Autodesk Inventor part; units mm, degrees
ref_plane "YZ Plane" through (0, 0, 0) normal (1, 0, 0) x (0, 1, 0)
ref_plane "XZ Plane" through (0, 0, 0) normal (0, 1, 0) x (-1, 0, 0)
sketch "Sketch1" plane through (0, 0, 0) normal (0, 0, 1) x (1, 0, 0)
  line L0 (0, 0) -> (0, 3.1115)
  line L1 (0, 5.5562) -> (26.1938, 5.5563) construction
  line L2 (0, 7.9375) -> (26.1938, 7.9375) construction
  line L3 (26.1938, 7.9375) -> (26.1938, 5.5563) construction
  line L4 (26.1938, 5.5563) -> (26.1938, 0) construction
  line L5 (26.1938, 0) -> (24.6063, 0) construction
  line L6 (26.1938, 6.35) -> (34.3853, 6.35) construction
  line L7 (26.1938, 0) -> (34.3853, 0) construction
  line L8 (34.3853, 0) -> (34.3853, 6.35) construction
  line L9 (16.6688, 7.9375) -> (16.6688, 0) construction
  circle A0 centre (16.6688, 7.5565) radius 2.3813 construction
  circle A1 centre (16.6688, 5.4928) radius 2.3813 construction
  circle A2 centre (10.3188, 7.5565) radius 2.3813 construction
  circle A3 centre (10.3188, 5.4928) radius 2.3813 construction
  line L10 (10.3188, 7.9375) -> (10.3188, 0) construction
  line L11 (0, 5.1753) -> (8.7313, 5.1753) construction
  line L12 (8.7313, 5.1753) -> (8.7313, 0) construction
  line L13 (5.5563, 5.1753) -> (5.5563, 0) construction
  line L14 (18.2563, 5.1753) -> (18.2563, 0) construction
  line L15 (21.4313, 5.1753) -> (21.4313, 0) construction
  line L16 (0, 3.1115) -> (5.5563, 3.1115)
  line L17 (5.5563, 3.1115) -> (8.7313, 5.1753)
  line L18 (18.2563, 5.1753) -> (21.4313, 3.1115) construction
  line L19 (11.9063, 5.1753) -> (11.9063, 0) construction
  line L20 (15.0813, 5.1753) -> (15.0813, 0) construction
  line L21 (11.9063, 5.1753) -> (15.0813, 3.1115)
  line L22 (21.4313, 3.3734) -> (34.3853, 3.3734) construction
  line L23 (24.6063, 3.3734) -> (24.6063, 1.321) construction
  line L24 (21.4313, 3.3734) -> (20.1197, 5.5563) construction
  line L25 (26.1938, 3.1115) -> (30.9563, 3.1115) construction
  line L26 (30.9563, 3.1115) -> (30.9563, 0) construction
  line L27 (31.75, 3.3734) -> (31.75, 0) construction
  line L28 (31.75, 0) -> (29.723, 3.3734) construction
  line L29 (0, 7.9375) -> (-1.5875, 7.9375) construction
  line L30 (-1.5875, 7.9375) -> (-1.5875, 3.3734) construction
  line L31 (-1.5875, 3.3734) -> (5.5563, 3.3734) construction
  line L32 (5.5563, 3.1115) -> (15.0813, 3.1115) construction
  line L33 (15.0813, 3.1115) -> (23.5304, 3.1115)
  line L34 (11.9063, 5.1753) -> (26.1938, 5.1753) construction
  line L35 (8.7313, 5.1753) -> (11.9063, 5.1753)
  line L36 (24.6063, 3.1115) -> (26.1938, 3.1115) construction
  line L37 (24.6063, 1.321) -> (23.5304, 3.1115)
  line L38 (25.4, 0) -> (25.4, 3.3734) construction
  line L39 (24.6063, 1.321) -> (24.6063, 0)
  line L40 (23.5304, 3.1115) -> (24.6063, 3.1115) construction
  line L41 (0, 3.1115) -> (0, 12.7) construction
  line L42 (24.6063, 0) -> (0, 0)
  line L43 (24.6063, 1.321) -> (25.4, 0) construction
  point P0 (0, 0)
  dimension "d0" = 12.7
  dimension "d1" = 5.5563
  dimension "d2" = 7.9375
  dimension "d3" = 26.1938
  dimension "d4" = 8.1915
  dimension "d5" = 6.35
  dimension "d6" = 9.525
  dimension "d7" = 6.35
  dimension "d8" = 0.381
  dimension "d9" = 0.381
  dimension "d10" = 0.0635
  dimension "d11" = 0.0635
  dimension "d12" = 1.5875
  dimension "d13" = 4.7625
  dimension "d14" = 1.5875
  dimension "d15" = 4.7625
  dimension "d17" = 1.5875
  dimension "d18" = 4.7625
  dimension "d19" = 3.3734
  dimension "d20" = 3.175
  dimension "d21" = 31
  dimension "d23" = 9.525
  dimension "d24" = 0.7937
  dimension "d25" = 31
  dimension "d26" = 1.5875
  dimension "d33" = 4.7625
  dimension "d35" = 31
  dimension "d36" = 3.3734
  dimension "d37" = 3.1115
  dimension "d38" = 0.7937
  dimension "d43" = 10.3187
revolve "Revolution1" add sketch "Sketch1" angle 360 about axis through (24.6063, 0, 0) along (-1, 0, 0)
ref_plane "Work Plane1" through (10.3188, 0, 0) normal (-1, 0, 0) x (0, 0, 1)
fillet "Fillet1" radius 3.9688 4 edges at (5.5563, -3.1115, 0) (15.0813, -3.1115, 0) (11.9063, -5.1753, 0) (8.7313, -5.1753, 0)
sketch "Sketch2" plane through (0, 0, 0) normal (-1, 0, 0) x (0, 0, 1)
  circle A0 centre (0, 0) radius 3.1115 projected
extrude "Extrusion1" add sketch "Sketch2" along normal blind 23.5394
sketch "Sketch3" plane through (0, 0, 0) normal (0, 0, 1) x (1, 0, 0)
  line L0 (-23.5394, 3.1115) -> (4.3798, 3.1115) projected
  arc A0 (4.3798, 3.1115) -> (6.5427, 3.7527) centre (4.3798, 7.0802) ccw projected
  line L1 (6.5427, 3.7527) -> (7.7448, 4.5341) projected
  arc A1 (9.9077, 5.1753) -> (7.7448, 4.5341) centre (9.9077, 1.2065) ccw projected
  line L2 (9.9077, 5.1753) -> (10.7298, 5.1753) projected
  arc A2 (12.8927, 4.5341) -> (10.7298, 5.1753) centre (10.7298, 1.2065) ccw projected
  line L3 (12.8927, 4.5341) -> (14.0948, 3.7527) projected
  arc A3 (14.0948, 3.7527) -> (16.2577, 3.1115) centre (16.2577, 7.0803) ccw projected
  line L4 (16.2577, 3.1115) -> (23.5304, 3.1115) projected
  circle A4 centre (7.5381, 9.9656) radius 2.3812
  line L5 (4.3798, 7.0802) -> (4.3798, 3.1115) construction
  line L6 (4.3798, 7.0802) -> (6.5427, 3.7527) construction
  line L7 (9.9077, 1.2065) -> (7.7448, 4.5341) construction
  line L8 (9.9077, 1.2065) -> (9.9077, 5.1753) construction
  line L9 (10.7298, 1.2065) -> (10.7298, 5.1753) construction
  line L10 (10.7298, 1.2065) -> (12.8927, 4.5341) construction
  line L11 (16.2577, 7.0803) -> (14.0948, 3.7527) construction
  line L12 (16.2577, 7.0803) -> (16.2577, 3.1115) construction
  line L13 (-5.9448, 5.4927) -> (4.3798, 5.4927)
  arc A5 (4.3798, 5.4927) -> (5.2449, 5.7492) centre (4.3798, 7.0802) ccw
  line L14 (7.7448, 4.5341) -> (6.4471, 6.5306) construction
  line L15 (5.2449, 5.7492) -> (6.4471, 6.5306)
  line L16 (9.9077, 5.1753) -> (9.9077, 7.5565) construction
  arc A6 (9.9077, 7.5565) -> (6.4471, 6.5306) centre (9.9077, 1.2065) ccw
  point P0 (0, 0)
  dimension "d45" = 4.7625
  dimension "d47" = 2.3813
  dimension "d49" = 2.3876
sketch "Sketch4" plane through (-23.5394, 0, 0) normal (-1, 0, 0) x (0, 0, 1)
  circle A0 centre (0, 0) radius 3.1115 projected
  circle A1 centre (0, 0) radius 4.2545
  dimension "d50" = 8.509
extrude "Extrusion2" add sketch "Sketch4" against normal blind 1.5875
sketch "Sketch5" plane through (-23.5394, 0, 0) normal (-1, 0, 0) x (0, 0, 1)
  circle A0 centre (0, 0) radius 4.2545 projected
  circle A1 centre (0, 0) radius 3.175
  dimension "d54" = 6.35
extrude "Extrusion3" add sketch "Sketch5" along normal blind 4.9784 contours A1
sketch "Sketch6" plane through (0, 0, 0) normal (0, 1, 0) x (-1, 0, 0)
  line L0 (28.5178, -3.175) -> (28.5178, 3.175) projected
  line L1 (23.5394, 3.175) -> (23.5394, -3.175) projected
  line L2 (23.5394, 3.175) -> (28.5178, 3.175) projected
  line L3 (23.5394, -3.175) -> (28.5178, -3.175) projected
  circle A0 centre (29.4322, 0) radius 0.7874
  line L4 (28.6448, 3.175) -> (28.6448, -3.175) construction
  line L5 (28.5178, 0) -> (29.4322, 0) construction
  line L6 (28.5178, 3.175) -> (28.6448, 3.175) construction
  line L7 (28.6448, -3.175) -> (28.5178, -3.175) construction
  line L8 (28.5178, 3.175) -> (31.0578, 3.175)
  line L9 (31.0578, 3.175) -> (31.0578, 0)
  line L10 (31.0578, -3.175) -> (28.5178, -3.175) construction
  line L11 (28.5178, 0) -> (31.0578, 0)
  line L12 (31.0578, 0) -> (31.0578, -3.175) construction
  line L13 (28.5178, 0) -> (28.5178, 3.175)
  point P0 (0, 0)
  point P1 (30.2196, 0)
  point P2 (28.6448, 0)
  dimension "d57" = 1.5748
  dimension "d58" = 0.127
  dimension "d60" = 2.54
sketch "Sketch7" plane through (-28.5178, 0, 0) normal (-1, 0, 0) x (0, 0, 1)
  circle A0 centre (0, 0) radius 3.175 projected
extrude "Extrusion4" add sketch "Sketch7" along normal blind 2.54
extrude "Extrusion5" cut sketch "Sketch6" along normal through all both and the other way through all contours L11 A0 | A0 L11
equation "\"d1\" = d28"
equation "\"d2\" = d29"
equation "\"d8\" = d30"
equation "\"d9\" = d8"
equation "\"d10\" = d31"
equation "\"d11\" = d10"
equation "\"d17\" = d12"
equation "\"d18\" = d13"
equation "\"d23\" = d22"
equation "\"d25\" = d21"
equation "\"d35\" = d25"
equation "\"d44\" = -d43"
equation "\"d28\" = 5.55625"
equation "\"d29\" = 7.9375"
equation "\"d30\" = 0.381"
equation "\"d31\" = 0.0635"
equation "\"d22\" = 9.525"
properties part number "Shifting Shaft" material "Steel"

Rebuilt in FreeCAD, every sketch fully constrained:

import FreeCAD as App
import Part
import Sketcher

V = App.Vector
Q = App.Units.Quantity


def edges_at(feature, points):
    """Names of the edges that pass closest to the given points."""
    edges = feature.Shape.Edges
    near = lambda p: min(range(len(edges)), key=lambda i: edges[i].distToShape(Part.Vertex(*p))[0])
    return sorted({f"Edge{near(p) + 1}" for p in points})


def add_polygon(sketch, points):
    """Adds a closed chain of lines whose ends are joined by coincident constraints."""
    first, n = sketch.GeometryCount, len(points)
    for a, b in zip(points, points[1:] + points[:1]):
        sketch.addGeometry(Part.LineSegment(App.Vector(*a, 0), App.Vector(*b, 0)), False)
    for i in range(n):
        sketch.addConstraint(Sketcher.Constraint("Coincident", first + i, 2, first + (i + 1) % n, 1))

doc = App.newDocument("Part")
body = doc.addObject("PartDesign::Body", "Body")

# Sketch on XY plane
sketch1 = doc.addObject("Sketcher::SketchObject", "Sketch")
body.addObject(sketch1)
sketch1.AttachmentSupport = (doc.XY_Plane, [""])
sketch1.MapMode = "FlatFace"
add_polygon(sketch1, [(0, 3.1), (0, 0), (24.6, 0), (24.6, 1.3), (23.5, 3.1), (15.1, 3.1), (11.9, 5.2), (8.7, 5.2), (5.6, 3.1)])  # lines 0-8
sketch1.addConstraint([
    Sketcher.Constraint("Vertical", 0),
    Sketcher.Constraint("Horizontal", 1),
    Sketcher.Constraint("Vertical", 2),
    Sketcher.Constraint("Horizontal", 4),
    Sketcher.Constraint("Horizontal", 6),
    Sketcher.Constraint("Horizontal", 8),
    Sketcher.Constraint("Coincident", 0, 2, -1, 1),
    Sketcher.Constraint("Horizontal", 4, 2, 7, 2),
    Sketcher.Constraint("Equal", 5, 7),
    Sketcher.Constraint("DistanceX", 5, 2, 2, 2, Q("0.5 in")),
    Sketcher.Constraint("DistanceX", 6, 2, 6, 1, Q("0.125 in")),
    Sketcher.Constraint("DistanceX", 8, 2, 8, 1, Q("0.218752 in")),
    Sketcher.Constraint("DistanceX", 6, 2, 4, 2, Q("0.25 in")),
    Sketcher.Constraint("DistanceY", 0, 2, 0, 1, Q("0.1225 in")),
    Sketcher.Constraint("DistanceY", 2, 1, 2, 2, Q("0.052 in")),
    Sketcher.Constraint("DistanceX", 4, 2, 4, 1, Q("8.449 mm")),
    Sketcher.Constraint("Distance", 5, Q("3.7868 mm")),
])
revolution = doc.addObject("PartDesign::Revolution", "Revolution")
body.addObject(revolution)
revolution.Profile = sketch1
revolution.ReferenceAxis = (sketch1, ["H_Axis"])
revolution.Angle = 360
doc.recompute()

fillet = doc.addObject("PartDesign::Fillet", "Fillet")
body.addObject(fillet)
fillet.Base = (revolution, edges_at(revolution, [
    (5.556, -3.111, 0),
    (15.081, -3.111, 0),
    (11.906, -5.175, 0),
    (8.731, -5.175, 0),
]))
fillet.Radius = Q("0.156252 in")

# Sketch on YZ plane
sketch2 = doc.addObject("Sketcher::SketchObject", "Sketch001")
body.addObject(sketch2)
sketch2.AttachmentSupport = (doc.YZ_Plane, [""])
sketch2.MapMode = "FlatFace"
sketch2.addGeometry(Part.Circle(V(0, 0, 0), V(0, 0, 1), 3.1), False)
sketch2.addConstraint([
    Sketcher.Constraint("Coincident", 0, 3, -1, 1),
    Sketcher.Constraint("Diameter", 0, Q("0.245 in")),
])
pad1 = doc.addObject("PartDesign::Pad", "Pad")
body.addObject(pad1)
pad1.Profile = sketch2
pad1.Length = 23.5394
pad1.Reversed = True

# Sketch on YZ plane
sketch3 = doc.addObject("Sketcher::SketchObject", "Sketch002")
body.addObject(sketch3)
sketch3.AttachmentSupport = (doc.YZ_Plane, [""])
sketch3.MapMode = "FlatFace"
sketch3.AttachmentOffset = App.Placement(V(0, 0, -23.5394), App.Rotation())
sketch3.addGeometry([
    Part.Circle(V(0, 0, 0), V(0, 0, 1), 4.3),
    Part.Circle(V(0, 0, 0), V(0, 0, 1), 3.1),
], False)
sketch3.addConstraint([
    Sketcher.Constraint("Coincident", 0, 3, -1, 1),
    Sketcher.Constraint("Coincident", 1, 3, -1, 1),
    Sketcher.Constraint("Diameter", 0, Q("0.335 in")),
    Sketcher.Constraint("Diameter", 1, Q("0.245 in")),
])
pad2 = doc.addObject("PartDesign::Pad", "Pad001")
body.addObject(pad2)
pad2.Profile = sketch3
pad2.Length = Q("0.0625 in")

# Sketch on YZ plane
sketch4 = doc.addObject("Sketcher::SketchObject", "Sketch003")
body.addObject(sketch4)
sketch4.AttachmentSupport = (doc.YZ_Plane, [""])
sketch4.MapMode = "FlatFace"
sketch4.AttachmentOffset = App.Placement(V(0, 0, -23.5394), App.Rotation())
sketch4.addGeometry(Part.Circle(V(0, 0, 0), V(0, 0, 1), 3.2), False)
sketch4.addConstraint([
    Sketcher.Constraint("Coincident", 0, 3, -1, 1),
    Sketcher.Constraint("Diameter", 0, Q("0.25 in")),
])
pad3 = doc.addObject("PartDesign::Pad", "Pad002")
body.addObject(pad3)
pad3.Profile = sketch4
pad3.Length = Q("0.196 in")
pad3.Reversed = True

# Sketch on YZ plane
sketch5 = doc.addObject("Sketcher::SketchObject", "Sketch004")
body.addObject(sketch5)
sketch5.AttachmentSupport = (doc.YZ_Plane, [""])
sketch5.MapMode = "FlatFace"
sketch5.AttachmentOffset = App.Placement(V(0, 0, -28.5178), App.Rotation())
sketch5.addGeometry(Part.Circle(V(0, 0, 0), V(0, 0, 1), 3.2), False)
sketch5.addConstraint([
    Sketcher.Constraint("Coincident", 0, 3, -1, 1),
    Sketcher.Constraint("Diameter", 0, Q("0.25 in")),
])
pad4 = doc.addObject("PartDesign::Pad", "Pad003")
body.addObject(pad4)
pad4.Profile = sketch5
pad4.Length = Q("0.1 in")
pad4.Reversed = True

# Sketch on XZ plane
sketch6 = doc.addObject("Sketcher::SketchObject", "Sketch005")
body.addObject(sketch6)
sketch6.AttachmentSupport = (doc.XZ_Plane, [""])
sketch6.MapMode = "FlatFace"
sketch6.addGeometry(Part.Circle(V(-29.4, 0, 0), V(0, 0, 1), 0.8), False)
sketch6.addConstraint([
    Sketcher.Constraint("PointOnObject", 0, 3, -1),
    Sketcher.Constraint("Diameter", 0, Q("0.062 in")),
    Sketcher.Constraint("DistanceX", 0, 3, -1, 1, Q("29.4322 mm")),
])
pocket1 = doc.addObject("PartDesign::Pocket", "Pocket")
body.addObject(pocket1)
pocket1.Profile = sketch6
pocket1.Type = "ThroughAll"
pocket1.Midplane = True

doc.recompute()
